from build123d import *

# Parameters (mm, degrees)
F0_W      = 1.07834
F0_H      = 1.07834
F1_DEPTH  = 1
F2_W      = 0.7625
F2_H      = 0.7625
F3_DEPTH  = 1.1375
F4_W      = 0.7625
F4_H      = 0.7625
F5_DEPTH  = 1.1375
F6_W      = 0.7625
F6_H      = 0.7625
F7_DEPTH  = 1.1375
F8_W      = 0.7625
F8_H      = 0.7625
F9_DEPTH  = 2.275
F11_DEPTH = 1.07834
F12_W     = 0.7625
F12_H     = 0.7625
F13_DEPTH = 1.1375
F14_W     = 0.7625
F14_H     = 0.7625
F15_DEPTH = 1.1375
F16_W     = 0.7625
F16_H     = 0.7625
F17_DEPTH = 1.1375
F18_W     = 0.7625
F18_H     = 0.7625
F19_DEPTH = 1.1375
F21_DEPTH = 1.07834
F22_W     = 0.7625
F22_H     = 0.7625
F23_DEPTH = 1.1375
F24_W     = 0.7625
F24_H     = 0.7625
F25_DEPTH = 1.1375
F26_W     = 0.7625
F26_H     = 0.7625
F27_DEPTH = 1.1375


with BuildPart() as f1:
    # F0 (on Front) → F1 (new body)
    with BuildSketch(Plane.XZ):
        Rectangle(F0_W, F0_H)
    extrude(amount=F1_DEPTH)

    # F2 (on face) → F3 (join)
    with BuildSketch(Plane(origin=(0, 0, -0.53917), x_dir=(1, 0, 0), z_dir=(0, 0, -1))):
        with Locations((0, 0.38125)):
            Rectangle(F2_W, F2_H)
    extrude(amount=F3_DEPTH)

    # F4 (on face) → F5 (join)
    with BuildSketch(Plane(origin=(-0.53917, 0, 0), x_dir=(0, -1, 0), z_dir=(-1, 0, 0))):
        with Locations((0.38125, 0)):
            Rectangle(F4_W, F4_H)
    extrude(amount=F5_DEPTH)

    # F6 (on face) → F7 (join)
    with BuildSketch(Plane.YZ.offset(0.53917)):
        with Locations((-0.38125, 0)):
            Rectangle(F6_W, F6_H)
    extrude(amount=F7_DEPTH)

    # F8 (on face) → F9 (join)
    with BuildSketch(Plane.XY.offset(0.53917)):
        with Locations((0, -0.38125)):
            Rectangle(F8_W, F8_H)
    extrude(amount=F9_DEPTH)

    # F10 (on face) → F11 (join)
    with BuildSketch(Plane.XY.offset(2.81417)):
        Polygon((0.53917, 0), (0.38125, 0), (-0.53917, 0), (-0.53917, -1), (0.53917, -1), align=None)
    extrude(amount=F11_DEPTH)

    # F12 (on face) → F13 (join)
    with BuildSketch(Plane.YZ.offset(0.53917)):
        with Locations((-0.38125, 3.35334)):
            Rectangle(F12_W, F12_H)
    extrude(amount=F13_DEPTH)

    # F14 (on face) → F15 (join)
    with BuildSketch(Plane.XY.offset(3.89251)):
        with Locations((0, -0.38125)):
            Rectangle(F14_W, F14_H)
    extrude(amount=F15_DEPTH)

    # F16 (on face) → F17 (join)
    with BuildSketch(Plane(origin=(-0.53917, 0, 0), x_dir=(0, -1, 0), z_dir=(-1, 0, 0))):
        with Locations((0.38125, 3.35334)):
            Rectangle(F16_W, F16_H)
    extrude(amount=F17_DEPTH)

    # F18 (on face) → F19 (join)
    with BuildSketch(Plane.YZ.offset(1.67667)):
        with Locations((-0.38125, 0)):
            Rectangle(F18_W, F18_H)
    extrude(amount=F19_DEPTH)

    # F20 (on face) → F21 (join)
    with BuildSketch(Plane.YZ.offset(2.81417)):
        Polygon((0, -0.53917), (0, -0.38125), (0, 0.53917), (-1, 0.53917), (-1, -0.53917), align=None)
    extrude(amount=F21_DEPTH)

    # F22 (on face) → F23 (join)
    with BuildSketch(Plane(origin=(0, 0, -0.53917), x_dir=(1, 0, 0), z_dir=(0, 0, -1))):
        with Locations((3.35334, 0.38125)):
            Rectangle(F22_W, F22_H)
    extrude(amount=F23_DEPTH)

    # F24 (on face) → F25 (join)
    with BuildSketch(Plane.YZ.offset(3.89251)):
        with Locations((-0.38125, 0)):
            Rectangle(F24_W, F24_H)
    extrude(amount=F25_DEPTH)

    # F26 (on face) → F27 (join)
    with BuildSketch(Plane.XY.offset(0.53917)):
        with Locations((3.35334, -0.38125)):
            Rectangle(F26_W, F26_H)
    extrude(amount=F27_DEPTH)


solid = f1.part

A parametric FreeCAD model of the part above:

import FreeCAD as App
import Part
import Sketcher
from FreeCAD import Vector
Q = App.Units.Quantity

doc = App.newDocument("Part")
body = doc.addObject("PartDesign::Body", "Body")

sketch1 = body.newObject("Sketcher::SketchObject", "Sketch")
sketch1.AttachmentSupport = (doc.getObject("XZ_Plane"), [""])
sketch1.MapMode = "FlatFace"
sketch1.addGeometry(Part.LineSegment(Vector(-0.5, 0.5, 0), Vector(-0.5, -0.5, 0)), False)
sketch1.addGeometry(Part.LineSegment(Vector(-0.5, -0.5, 0), Vector(0.5, -0.5, 0)), False)
sketch1.addGeometry(Part.LineSegment(Vector(0.5, -0.5, 0), Vector(0.5, 0.5, 0)), False)
sketch1.addGeometry(Part.LineSegment(Vector(0.5, 0.5, 0), Vector(-0.5, 0.5, 0)), False)
sketch1.addConstraint(Sketcher.Constraint("Coincident", 0, 2, 1, 1))
sketch1.addConstraint(Sketcher.Constraint("Coincident", 1, 2, 2, 1))
sketch1.addConstraint(Sketcher.Constraint("Coincident", 2, 2, 3, 1))
sketch1.addConstraint(Sketcher.Constraint("Coincident", 3, 2, 0, 1))
sketch1.addConstraint(Sketcher.Constraint("Vertical", 0))
sketch1.addConstraint(Sketcher.Constraint("Horizontal", 1))
sketch1.addConstraint(Sketcher.Constraint("Vertical", 2))
sketch1.addConstraint(Sketcher.Constraint("Horizontal", 3))
sketch1.addConstraint(Sketcher.Constraint("Symmetric", 0, 2, 2, 2, -1, 1))
sketch1.addConstraint(Sketcher.Constraint("Equal", 3, 0))
sketch1.addConstraint(Sketcher.Constraint("DistanceX", 1, 1, 1, 2, Q("1.07834 mm")))
pad1 = body.newObject("PartDesign::Pad", "Pad")
pad1.Profile = sketch1
pad1.Length = 1

sketch2 = body.newObject("Sketcher::SketchObject", "Sketch001")
sketch2.AttachmentSupport = (doc.getObject("XY_Plane"), [""])
sketch2.MapMode = "FlatFace"
sketch2.AttachmentOffset = App.Placement(Vector(0, 0, -0.53917), App.Rotation())
sketch2.addGeometry(Part.LineSegment(Vector(-0.4, -0.8, 0), Vector(-0.4, 0, 0)), False)
sketch2.addGeometry(Part.LineSegment(Vector(-0.4, 0, 0), Vector(0.4, 0, 0)), False)
sketch2.addGeometry(Part.LineSegment(Vector(0.4, 0, 0), Vector(0.4, -0.8, 0)), False)
sketch2.addGeometry(Part.LineSegment(Vector(0.4, -0.8, 0), Vector(-0.4, -0.8, 0)), False)
sketch2.addConstraint(Sketcher.Constraint("Coincident", 0, 2, 1, 1))
sketch2.addConstraint(Sketcher.Constraint("Coincident", 1, 2, 2, 1))
sketch2.addConstraint(Sketcher.Constraint("Coincident", 2, 2, 3, 1))
sketch2.addConstraint(Sketcher.Constraint("Coincident", 3, 2, 0, 1))
sketch2.addConstraint(Sketcher.Constraint("Vertical", 0))
sketch2.addConstraint(Sketcher.Constraint("Horizontal", 1))
sketch2.addConstraint(Sketcher.Constraint("Vertical", 2))
sketch2.addConstraint(Sketcher.Constraint("Horizontal", 3))
sketch2.addConstraint(Sketcher.Constraint("Symmetric", 0, 2, 1, 2, -1, 1))
sketch2.addConstraint(Sketcher.Constraint("Equal", 3, 0))
sketch2.addConstraint(Sketcher.Constraint("DistanceX", 1, 1, 1, 2, Q("0.7625 mm")))
pad2 = body.newObject("PartDesign::Pad", "Pad001")
pad2.Profile = sketch2
pad2.Length = 1.1375
pad2.Reversed = True

sketch3 = body.newObject("Sketcher::SketchObject", "Sketch002")
sketch3.AttachmentSupport = (doc.getObject("YZ_Plane"), [""])
sketch3.MapMode = "FlatFace"
sketch3.AttachmentOffset = App.Placement(Vector(0, 0, -0.53917), App.Rotation())
sketch3.addGeometry(Part.LineSegment(Vector(0, 0.4, 0), Vector(0, -0.4, 0)), False)
sketch3.addGeometry(Part.LineSegment(Vector(0, -0.4, 0), Vector(-0.8, -0.4, 0)), False)
sketch3.addGeometry(Part.LineSegment(Vector(-0.8, -0.4, 0), Vector(-0.8, 0.4, 0)), False)
sketch3.addGeometry(Part.LineSegment(Vector(-0.8, 0.4, 0), Vector(0, 0.4, 0)), False)
sketch3.addConstraint(Sketcher.Constraint("Coincident", 0, 2, 1, 1))
sketch3.addConstraint(Sketcher.Constraint("Coincident", 1, 2, 2, 1))
sketch3.addConstraint(Sketcher.Constraint("Coincident", 2, 2, 3, 1))
sketch3.addConstraint(Sketcher.Constraint("Coincident", 3, 2, 0, 1))
sketch3.addConstraint(Sketcher.Constraint("Vertical", 0))
sketch3.addConstraint(Sketcher.Constraint("Horizontal", 1))
sketch3.addConstraint(Sketcher.Constraint("Vertical", 2))
sketch3.addConstraint(Sketcher.Constraint("Horizontal", 3))
sketch3.addConstraint(Sketcher.Constraint("Symmetric", 0, 2, 3, 2, -1, 1))
sketch3.addConstraint(Sketcher.Constraint("Equal", 3, 0))
sketch3.addConstraint(Sketcher.Constraint("DistanceX", 1, 2, 1, 1, Q("0.7625 mm")))
pad3 = body.newObject("PartDesign::Pad", "Pad002")
pad3.Profile = sketch3
pad3.Length = 1.1375
pad3.Reversed = True

sketch4 = body.newObject("Sketcher::SketchObject", "Sketch003")
sketch4.AttachmentSupport = (doc.getObject("YZ_Plane"), [""])
sketch4.MapMode = "FlatFace"
sketch4.AttachmentOffset = App.Placement(Vector(0, 0, 0.53917), App.Rotation())
sketch4.addGeometry(Part.LineSegment(Vector(-0.8, 0.4, 0), Vector(-0.8, -0.4, 0)), False)
sketch4.addGeometry(Part.LineSegment(Vector(-0.8, -0.4, 0), Vector(0, -0.4, 0)), False)
sketch4.addGeometry(Part.LineSegment(Vector(0, -0.4, 0), Vector(0, 0.4, 0)), False)
sketch4.addGeometry(Part.LineSegment(Vector(0, 0.4, 0), Vector(-0.8, 0.4, 0)), False)
sketch4.addConstraint(Sketcher.Constraint("Coincident", 0, 2, 1, 1))
sketch4.addConstraint(Sketcher.Constraint("Coincident", 1, 2, 2, 1))
sketch4.addConstraint(Sketcher.Constraint("Coincident", 2, 2, 3, 1))
sketch4.addConstraint(Sketcher.Constraint("Coincident", 3, 2, 0, 1))
sketch4.addConstraint(Sketcher.Constraint("Vertical", 0))
sketch4.addConstraint(Sketcher.Constraint("Horizontal", 1))
sketch4.addConstraint(Sketcher.Constraint("Vertical", 2))
sketch4.addConstraint(Sketcher.Constraint("Horizontal", 3))
sketch4.addConstraint(Sketcher.Constraint("Symmetric", 1, 2, 2, 2, -1, 1))
sketch4.addConstraint(Sketcher.Constraint("Equal", 3, 0))
sketch4.addConstraint(Sketcher.Constraint("DistanceX", 1, 1, 1, 2, Q("0.7625 mm")))
pad4 = body.newObject("PartDesign::Pad", "Pad003")
pad4.Profile = sketch4
pad4.Length = 1.1375

sketch5 = body.newObject("Sketcher::SketchObject", "Sketch004")
sketch5.AttachmentSupport = (doc.getObject("XY_Plane"), [""])
sketch5.MapMode = "FlatFace"
sketch5.AttachmentOffset = App.Placement(Vector(0, 0, 0.53917), App.Rotation())
sketch5.addGeometry(Part.LineSegment(Vector(-0.4, 0, 0), Vector(-0.4, -0.8, 0)), False)
sketch5.addGeometry(Part.LineSegment(Vector(-0.4, -0.8, 0), Vector(0.4, -0.8, 0)), False)
sketch5.addGeometry(Part.LineSegment(Vector(0.4, -0.8, 0), Vector(0.4, 0, 0)), False)
sketch5.addGeometry(Part.LineSegment(Vector(0.4, 0, 0), Vector(-0.4, 0, 0)), False)
sketch5.addConstraint(Sketcher.Constraint("Coincident", 0, 2, 1, 1))
sketch5.addConstraint(Sketcher.Constraint("Coincident", 1, 2, 2, 1))
sketch5.addConstraint(Sketcher.Constraint("Coincident", 2, 2, 3, 1))
sketch5.addConstraint(Sketcher.Constraint("Coincident", 3, 2, 0, 1))
sketch5.addConstraint(Sketcher.Constraint("Vertical", 0))
sketch5.addConstraint(Sketcher.Constraint("Horizontal", 1))
sketch5.addConstraint(Sketcher.Constraint("Vertical", 2))
sketch5.addConstraint(Sketcher.Constraint("Horizontal", 3))
sketch5.addConstraint(Sketcher.Constraint("Symmetric", 2, 2, 3, 2, -1, 1))
sketch5.addConstraint(Sketcher.Constraint("Equal", 3, 0))
sketch5.addConstraint(Sketcher.Constraint("DistanceX", 1, 1, 1, 2, Q("0.7625 mm")))
pad5 = body.newObject("PartDesign::Pad", "Pad004")
pad5.Profile = sketch5
pad5.Length = 2.275

sketch6 = body.newObject("Sketcher::SketchObject", "Sketch005")
sketch6.AttachmentSupport = (doc.getObject("XY_Plane"), [""])
sketch6.MapMode = "FlatFace"
sketch6.AttachmentOffset = App.Placement(Vector(0, 0, 2.81417), App.Rotation())
sketch6.addGeometry(Part.LineSegment(Vector(0.5, 0, 0), Vector(-0.5, 0, 0)), False)
sketch6.addGeometry(Part.LineSegment(Vector(-0.5, 0, 0), Vector(-0.5, -1, 0)), False)
sketch6.addGeometry(Part.LineSegment(Vector(-0.5, -1, 0), Vector(0.5, -1, 0)), False)
sketch6.addGeometry(Part.LineSegment(Vector(0.5, -1, 0), Vector(0.5, 0, 0)), False)
sketch6.addConstraint(Sketcher.Constraint("Coincident", 0, 2, 1, 1))
sketch6.addConstraint(Sketcher.Constraint("Coincident", 1, 2, 2, 1))
sketch6.addConstraint(Sketcher.Constraint("Coincident", 2, 2, 3, 1))
sketch6.addConstraint(Sketcher.Constraint("Coincident", 3, 2, 0, 1))
sketch6.addConstraint(Sketcher.Constraint("Horizontal", 0))
sketch6.addConstraint(Sketcher.Constraint("Vertical", 1))
sketch6.addConstraint(Sketcher.Constraint("Horizontal", 2))
sketch6.addConstraint(Sketcher.Constraint("Vertical", 3))
sketch6.addConstraint(Sketcher.Constraint("Symmetric", 0, 2, 3, 2, -1, 1))
sketch6.addConstraint(Sketcher.Constraint("DistanceY", 1, 2, 1, 1, Q("1 mm")))
sketch6.addConstraint(Sketcher.Constraint("DistanceX", 0, 2, 0, 1, Q("1.07834 mm")))
pad6 = body.newObject("PartDesign::Pad", "Pad005")
pad6.Profile = sketch6
pad6.Length = 1.07834

sketch7 = body.newObject("Sketcher::SketchObject", "Sketch006")
sketch7.AttachmentSupport = (doc.getObject("YZ_Plane"), [""])
sketch7.MapMode = "FlatFace"
sketch7.AttachmentOffset = App.Placement(Vector(0, 0, 0.53917), App.Rotation())
sketch7.addGeometry(Part.LineSegment(Vector(-0.8, 3.7, 0), Vector(-0.8, 3, 0)), False)
sketch7.addGeometry(Part.LineSegment(Vector(-0.8, 3, 0), Vector(0, 3, 0)), False)
sketch7.addGeometry(Part.LineSegment(Vector(0, 3, 0), Vector(0, 3.7, 0)), False)
sketch7.addGeometry(Part.LineSegment(Vector(0, 3.7, 0), Vector(-0.8, 3.7, 0)), False)
sketch7.addConstraint(Sketcher.Constraint("Coincident", 0, 2, 1, 1))
sketch7.addConstraint(Sketcher.Constraint("Coincident", 1, 2, 2, 1))
sketch7.addConstraint(Sketcher.Constraint("Coincident", 2, 2, 3, 1))
sketch7.addConstraint(Sketcher.Constraint("Coincident", 3, 2, 0, 1))
sketch7.addConstraint(Sketcher.Constraint("Vertical", 0))
sketch7.addConstraint(Sketcher.Constraint("Horizontal", 1))
sketch7.addConstraint(Sketcher.Constraint("Vertical", 2))
sketch7.addConstraint(Sketcher.Constraint("Horizontal", 3))
sketch7.addConstraint(Sketcher.Constraint("PointOnObject", 1, 2, -2))
sketch7.addConstraint(Sketcher.Constraint("Equal", 3, 0))
sketch7.addConstraint(Sketcher.Constraint("DistanceX", 1, 1, 1, 2, Q("0.7625 mm")))
sketch7.addConstraint(Sketcher.Constraint("DistanceY", -1, 1, 0, 2, Q("2.97209 mm")))
pad7 = body.newObject("PartDesign::Pad", "Pad006")
pad7.Profile = sketch7
pad7.Length = 1.1375

sketch8 = body.newObject("Sketcher::SketchObject", "Sketch007")
sketch8.AttachmentSupport = (doc.getObject("XY_Plane"), [""])
sketch8.MapMode = "FlatFace"
sketch8.AttachmentOffset = App.Placement(Vector(0, 0, 3.89251), App.Rotation())
sketch8.addGeometry(Part.LineSegment(Vector(-0.4, 0, 0), Vector(-0.4, -0.8, 0)), False)
sketch8.addGeometry(Part.LineSegment(Vector(-0.4, -0.8, 0), Vector(0.4, -0.8, 0)), False)
sketch8.addGeometry(Part.LineSegment(Vector(0.4, -0.8, 0), Vector(0.4, 0, 0)), False)
sketch8.addGeometry(Part.LineSegment(Vector(0.4, 0, 0), Vector(-0.4, 0, 0)), False)
sketch8.addConstraint(Sketcher.Constraint("Coincident", 0, 2, 1, 1))
sketch8.addConstraint(Sketcher.Constraint("Coincident", 1, 2, 2, 1))
sketch8.addConstraint(Sketcher.Constraint("Coincident", 2, 2, 3, 1))
sketch8.addConstraint(Sketcher.Constraint("Coincident", 3, 2, 0, 1))
sketch8.addConstraint(Sketcher.Constraint("Vertical", 0))
sketch8.addConstraint(Sketcher.Constraint("Horizontal", 1))
sketch8.addConstraint(Sketcher.Constraint("Vertical", 2))
sketch8.addConstraint(Sketcher.Constraint("Horizontal", 3))
sketch8.addConstraint(Sketcher.Constraint("Symmetric", 2, 2, 3, 2, -1, 1))
sketch8.addConstraint(Sketcher.Constraint("Equal", 3, 0))
sketch8.addConstraint(Sketcher.Constraint("DistanceX", 1, 1, 1, 2, Q("0.7625 mm")))
pad8 = body.newObject("PartDesign::Pad", "Pad007")
pad8.Profile = sketch8
pad8.Length = 1.1375

sketch9 = body.newObject("Sketcher::SketchObject", "Sketch008")
sketch9.AttachmentSupport = (doc.getObject("YZ_Plane"), [""])
sketch9.MapMode = "FlatFace"
sketch9.AttachmentOffset = App.Placement(Vector(0, 0, -0.53917), App.Rotation())
sketch9.addGeometry(Part.LineSegment(Vector(0, 3.7, 0), Vector(0, 3, 0)), False)
sketch9.addGeometry(Part.LineSegment(Vector(0, 3, 0), Vector(-0.8, 3, 0)), False)
sketch9.addGeometry(Part.LineSegment(Vector(-0.8, 3, 0), Vector(-0.8, 3.7, 0)), False)
sketch9.addGeometry(Part.LineSegment(Vector(-0.8, 3.7, 0), Vector(0, 3.7, 0)), False)
sketch9.addConstraint(Sketcher.Constraint("Coincident", 0, 2, 1, 1))
sketch9.addConstraint(Sketcher.Constraint("Coincident", 1, 2, 2, 1))
sketch9.addConstraint(Sketcher.Constraint("Coincident", 2, 2, 3, 1))
sketch9.addConstraint(Sketcher.Constraint("Coincident", 3, 2, 0, 1))
sketch9.addConstraint(Sketcher.Constraint("Vertical", 0))
sketch9.addConstraint(Sketcher.Constraint("Horizontal", 1))
sketch9.addConstraint(Sketcher.Constraint("Vertical", 2))
sketch9.addConstraint(Sketcher.Constraint("Horizontal", 3))
sketch9.addConstraint(Sketcher.Constraint("PointOnObject", 0, 2, -2))
sketch9.addConstraint(Sketcher.Constraint("Equal", 3, 0))
sketch9.addConstraint(Sketcher.Constraint("DistanceX", 1, 2, 1, 1, Q("0.7625 mm")))
sketch9.addConstraint(Sketcher.Constraint("DistanceY", -1, 1, 0, 2, Q("2.97209 mm")))
pad9 = body.newObject("PartDesign::Pad", "Pad008")
pad9.Profile = sketch9
pad9.Length = 1.1375
pad9.Reversed = True

sketch10 = body.newObject("Sketcher::SketchObject", "Sketch009")
sketch10.AttachmentSupport = (doc.getObject("YZ_Plane"), [""])
sketch10.MapMode = "FlatFace"
sketch10.AttachmentOffset = App.Placement(Vector(0, 0, 1.67667), App.Rotation())
sketch10.addGeometry(Part.LineSegment(Vector(-0.8, 0.4, 0), Vector(-0.8, -0.4, 0)), False)
sketch10.addGeometry(Part.LineSegment(Vector(-0.8, -0.4, 0), Vector(0, -0.4, 0)), False)
sketch10.addGeometry(Part.LineSegment(Vector(0, -0.4, 0), Vector(0, 0.4, 0)), False)
sketch10.addGeometry(Part.LineSegment(Vector(0, 0.4, 0), Vector(-0.8, 0.4, 0)), False)
sketch10.addConstraint(Sketcher.Constraint("Coincident", 0, 2, 1, 1))
sketch10.addConstraint(Sketcher.Constraint("Coincident", 1, 2, 2, 1))
sketch10.addConstraint(Sketcher.Constraint("Coincident", 2, 2, 3, 1))
sketch10.addConstraint(Sketcher.Constraint("Coincident", 3, 2, 0, 1))
sketch10.addConstraint(Sketcher.Constraint("Vertical", 0))
sketch10.addConstraint(Sketcher.Constraint("Horizontal", 1))
sketch10.addConstraint(Sketcher.Constraint("Vertical", 2))
sketch10.addConstraint(Sketcher.Constraint("Horizontal", 3))
sketch10.addConstraint(Sketcher.Constraint("Symmetric", 1, 2, 2, 2, -1, 1))
sketch10.addConstraint(Sketcher.Constraint("Equal", 3, 0))
sketch10.addConstraint(Sketcher.Constraint("DistanceX", 1, 1, 1, 2, Q("0.7625 mm")))
pad10 = body.newObject("PartDesign::Pad", "Pad009")
pad10.Profile = sketch10
pad10.Length = 1.1375

sketch11 = body.newObject("Sketcher::SketchObject", "Sketch010")
sketch11.AttachmentSupport = (doc.getObject("YZ_Plane"), [""])
sketch11.MapMode = "FlatFace"
sketch11.AttachmentOffset = App.Placement(Vector(0, 0, 2.81417), App.Rotation())
sketch11.addGeometry(Part.LineSegment(Vector(0, -0.5, 0), Vector(0, 0.5, 0)), False)
sketch11.addGeometry(Part.LineSegment(Vector(0, 0.5, 0), Vector(-1, 0.5, 0)), False)
sketch11.addGeometry(Part.LineSegment(Vector(-1, 0.5, 0), Vector(-1, -0.5, 0)), False)
sketch11.addGeometry(Part.LineSegment(Vector(-1, -0.5, 0), Vector(0, -0.5, 0)), False)
sketch11.addConstraint(Sketcher.Constraint("Coincident", 0, 2, 1, 1))
sketch11.addConstraint(Sketcher.Constraint("Coincident", 1, 2, 2, 1))
sketch11.addConstraint(Sketcher.Constraint("Coincident", 2, 2, 3, 1))
sketch11.addConstraint(Sketcher.Constraint("Coincident", 3, 2, 0, 1))
sketch11.addConstraint(Sketcher.Constraint("Vertical", 0))
sketch11.addConstraint(Sketcher.Constraint("Horizontal", 1))
sketch11.addConstraint(Sketcher.Constraint("Vertical", 2))
sketch11.addConstraint(Sketcher.Constraint("Horizontal", 3))
sketch11.addConstraint(Sketcher.Constraint("Symmetric", 0, 2, 3, 2, -1, 1))
sketch11.addConstraint(Sketcher.Constraint("DistanceX", 1, 2, 1, 1, Q("1 mm")))
sketch11.addConstraint(Sketcher.Constraint("DistanceY", 0, 1, 0, 2, Q("1.07834 mm")))
pad11 = body.newObject("PartDesign::Pad", "Pad010")
pad11.Profile = sketch11
pad11.Length = 1.07834

sketch12 = body.newObject("Sketcher::SketchObject", "Sketch011")
sketch12.AttachmentSupport = (doc.getObject("XY_Plane"), [""])
sketch12.MapMode = "FlatFace"
sketch12.AttachmentOffset = App.Placement(Vector(0, 0, -0.53917), App.Rotation())
sketch12.addGeometry(Part.LineSegment(Vector(3, -0.8, 0), Vector(3, 0, 0)), False)
sketch12.addGeometry(Part.LineSegment(Vector(3, 0, 0), Vector(3.7, 0, 0)), False)
sketch12.addGeometry(Part.LineSegment(Vector(3.7, 0, 0), Vector(3.7, -0.8, 0)), False)
sketch12.addGeometry(Part.LineSegment(Vector(3.7, -0.8, 0), Vector(3, -0.8, 0)), False)
sketch12.addConstraint(Sketcher.Constraint("Coincident", 0, 2, 1, 1))
sketch12.addConstraint(Sketcher.Constraint("Coincident", 1, 2, 2, 1))
sketch12.addConstraint(Sketcher.Constraint("Coincident", 2, 2, 3, 1))
sketch12.addConstraint(Sketcher.Constraint("Coincident", 3, 2, 0, 1))
sketch12.addConstraint(Sketcher.Constraint("Vertical", 0))
sketch12.addConstraint(Sketcher.Constraint("Horizontal", 1))
sketch12.addConstraint(Sketcher.Constraint("Vertical", 2))
sketch12.addConstraint(Sketcher.Constraint("Horizontal", 3))
sketch12.addConstraint(Sketcher.Constraint("PointOnObject", 0, 2, -1))
sketch12.addConstraint(Sketcher.Constraint("Equal", 3, 0))
sketch12.addConstraint(Sketcher.Constraint("DistanceX", 1, 1, 1, 2, Q("0.7625 mm")))
sketch12.addConstraint(Sketcher.Constraint("DistanceX", -1, 1, 0, 2, Q("2.97209 mm")))
pad12 = body.newObject("PartDesign::Pad", "Pad011")
pad12.Profile = sketch12
pad12.Length = 1.1375
pad12.Reversed = True

sketch13 = body.newObject("Sketcher::SketchObject", "Sketch012")
sketch13.AttachmentSupport = (doc.getObject("YZ_Plane"), [""])
sketch13.MapMode = "FlatFace"
sketch13.AttachmentOffset = App.Placement(Vector(0, 0, 3.89251), App.Rotation())
sketch13.addGeometry(Part.LineSegment(Vector(-0.8, 0.4, 0), Vector(-0.8, -0.4, 0)), False)
sketch13.addGeometry(Part.LineSegment(Vector(-0.8, -0.4, 0), Vector(0, -0.4, 0)), False)
sketch13.addGeometry(Part.LineSegment(Vector(0, -0.4, 0), Vector(0, 0.4, 0)), False)
sketch13.addGeometry(Part.LineSegment(Vector(0, 0.4, 0), Vector(-0.8, 0.4, 0)), False)
sketch13.addConstraint(Sketcher.Constraint("Coincident", 0, 2, 1, 1))
sketch13.addConstraint(Sketcher.Constraint("Coincident", 1, 2, 2, 1))
sketch13.addConstraint(Sketcher.Constraint("Coincident", 2, 2, 3, 1))
sketch13.addConstraint(Sketcher.Constraint("Coincident", 3, 2, 0, 1))
sketch13.addConstraint(Sketcher.Constraint("Vertical", 0))
sketch13.addConstraint(Sketcher.Constraint("Horizontal", 1))
sketch13.addConstraint(Sketcher.Constraint("Vertical", 2))
sketch13.addConstraint(Sketcher.Constraint("Horizontal", 3))
sketch13.addConstraint(Sketcher.Constraint("Symmetric", 1, 2, 2, 2, -1, 1))
sketch13.addConstraint(Sketcher.Constraint("Equal", 3, 0))
sketch13.addConstraint(Sketcher.Constraint("DistanceX", 1, 1, 1, 2, Q("0.7625 mm")))
pad13 = body.newObject("PartDesign::Pad", "Pad012")
pad13.Profile = sketch13
pad13.Length = 1.1375

sketch14 = body.newObject("Sketcher::SketchObject", "Sketch013")
sketch14.AttachmentSupport = (doc.getObject("XY_Plane"), [""])
sketch14.MapMode = "FlatFace"
sketch14.AttachmentOffset = App.Placement(Vector(0, 0, 0.53917), App.Rotation())
sketch14.addGeometry(Part.LineSegment(Vector(3, 0, 0), Vector(3, -0.8, 0)), False)
sketch14.addGeometry(Part.LineSegment(Vector(3, -0.8, 0), Vector(3.7, -0.8, 0)), False)
sketch14.addGeometry(Part.LineSegment(Vector(3.7, -0.8, 0), Vector(3.7, 0, 0)), False)
sketch14.addGeometry(Part.LineSegment(Vector(3.7, 0, 0), Vector(3, 0, 0)), False)
sketch14.addConstraint(Sketcher.Constraint("Coincident", 0, 2, 1, 1))
sketch14.addConstraint(Sketcher.Constraint("Coincident", 1, 2, 2, 1))
sketch14.addConstraint(Sketcher.Constraint("Coincident", 2, 2, 3, 1))
sketch14.addConstraint(Sketcher.Constraint("Coincident", 3, 2, 0, 1))
sketch14.addConstraint(Sketcher.Constraint("Vertical", 0))
sketch14.addConstraint(Sketcher.Constraint("Horizontal", 1))
sketch14.addConstraint(Sketcher.Constraint("Vertical", 2))
sketch14.addConstraint(Sketcher.Constraint("Horizontal", 3))
sketch14.addConstraint(Sketcher.Constraint("PointOnObject", 2, 2, -1))
sketch14.addConstraint(Sketcher.Constraint("Equal", 3, 0))
sketch14.addConstraint(Sketcher.Constraint("DistanceX", 1, 1, 1, 2, Q("0.7625 mm")))
sketch14.addConstraint(Sketcher.Constraint("DistanceX", -1, 1, 0, 2, Q("2.97209 mm")))
pad14 = body.newObject("PartDesign::Pad", "Pad013")
pad14.Profile = sketch14
pad14.Length = 1.1375

doc.recompute()
